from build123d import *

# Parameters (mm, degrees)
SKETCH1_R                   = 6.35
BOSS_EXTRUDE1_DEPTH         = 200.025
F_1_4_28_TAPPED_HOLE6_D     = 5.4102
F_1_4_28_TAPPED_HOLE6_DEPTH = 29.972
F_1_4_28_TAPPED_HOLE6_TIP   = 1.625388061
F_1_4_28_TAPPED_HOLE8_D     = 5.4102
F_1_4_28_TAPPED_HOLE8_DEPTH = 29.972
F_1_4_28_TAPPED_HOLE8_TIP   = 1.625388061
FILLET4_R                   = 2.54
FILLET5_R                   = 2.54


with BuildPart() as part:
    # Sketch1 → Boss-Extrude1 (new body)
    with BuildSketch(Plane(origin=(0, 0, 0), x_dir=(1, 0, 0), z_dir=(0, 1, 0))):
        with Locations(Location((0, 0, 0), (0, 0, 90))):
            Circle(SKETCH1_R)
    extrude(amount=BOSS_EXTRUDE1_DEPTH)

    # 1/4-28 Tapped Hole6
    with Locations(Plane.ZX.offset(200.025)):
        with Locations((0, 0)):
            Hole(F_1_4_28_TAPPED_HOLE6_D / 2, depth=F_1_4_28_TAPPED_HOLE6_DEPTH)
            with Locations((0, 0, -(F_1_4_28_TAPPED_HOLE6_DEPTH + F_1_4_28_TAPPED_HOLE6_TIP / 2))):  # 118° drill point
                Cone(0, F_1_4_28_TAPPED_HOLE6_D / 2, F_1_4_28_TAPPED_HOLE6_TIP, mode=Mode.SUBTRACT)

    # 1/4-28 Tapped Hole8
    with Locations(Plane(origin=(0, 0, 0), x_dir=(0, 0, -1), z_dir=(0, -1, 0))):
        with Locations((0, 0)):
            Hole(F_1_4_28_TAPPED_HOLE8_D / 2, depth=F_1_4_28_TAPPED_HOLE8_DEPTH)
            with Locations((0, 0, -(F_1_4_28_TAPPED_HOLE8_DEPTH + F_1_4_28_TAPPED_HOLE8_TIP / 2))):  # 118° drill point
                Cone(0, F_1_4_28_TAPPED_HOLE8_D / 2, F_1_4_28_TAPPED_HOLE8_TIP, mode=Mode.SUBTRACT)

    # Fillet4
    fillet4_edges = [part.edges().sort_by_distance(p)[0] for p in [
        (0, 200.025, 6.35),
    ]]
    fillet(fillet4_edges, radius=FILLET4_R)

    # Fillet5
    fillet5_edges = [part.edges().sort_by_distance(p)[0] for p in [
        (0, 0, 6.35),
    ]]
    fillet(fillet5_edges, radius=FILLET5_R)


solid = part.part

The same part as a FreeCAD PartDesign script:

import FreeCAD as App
import Part
import Sketcher
Q = App.Units.Quantity


def edges_at(feature, points):
    """Names of the edges that pass closest to the given points."""
    edges = feature.Shape.Edges
    near = lambda p: min(range(len(edges)), key=lambda i: edges[i].distToShape(Part.Vertex(*p))[0])
    return sorted({f"Edge{near(p) + 1}" for p in points})

doc = App.newDocument("Part")
body = doc.addObject("PartDesign::Body", "Body")

# Sketch on XZ plane
sketch1 = body.newObject("Sketcher::SketchObject", "Sketch")
sketch1.AttachmentSupport = (doc.getObject("XZ_Plane"), [""])
sketch1.MapMode = "FlatFace"
sketch1.addGeometry(Part.Circle(App.Vector(0, 0, 0), App.Vector(0, 0, 1), 6), False)
sketch1.addConstraint(Sketcher.Constraint("Coincident", 0, 3, -1, 1))
sketch1.addConstraint(Sketcher.Constraint("Diameter", 0, Q("0.5 in")))
pad1 = body.newObject("PartDesign::Pad", "Pad")
pad1.Profile = sketch1
pad1.Length = Q("7.875 in")
pad1.Reversed = True

# Sketch on XZ plane
sketch2 = body.newObject("Sketcher::SketchObject", "Sketch001")
sketch2.AttachmentSupport = (doc.getObject("XZ_Plane"), [""])
sketch2.MapMode = "FlatFace"
sketch2.AttachmentOffset = App.Placement(App.Vector(0, 0, -7.875 * 25.4), App.Rotation())
sketch2.addGeometry(Part.Circle(App.Vector(0, 0, 0), App.Vector(0, 0, 1), 2.7), False)
sketch2.addConstraint(Sketcher.Constraint("Coincident", 0, 3, -1, 1))
sketch2.addConstraint(Sketcher.Constraint("Diameter", 0, Q("0.213 in")))
doc.recompute()
hole = body.newObject("PartDesign::Hole", "Hole")
hole.Profile = sketch2
hole.ThreadType = "None"
hole.Diameter = Q("0.213 in")
hole.DepthType = "Dimension"
hole.Depth = Q("1.18 in")
hole.DrillPoint = "Angled"
hole.DrillPointAngle = 118
hole.Reversed = True

# Sketch on XZ plane
sketch3 = body.newObject("Sketcher::SketchObject", "Sketch002")
sketch3.AttachmentSupport = (doc.getObject("XZ_Plane"), [""])
sketch3.MapMode = "FlatFace"
sketch3.addGeometry(Part.Circle(App.Vector(0, 0, 0), App.Vector(0, 0, 1), 2.7), False)
sketch3.addConstraint(Sketcher.Constraint("Coincident", 0, 3, -1, 1))
sketch3.addConstraint(Sketcher.Constraint("Diameter", 0, Q("0.213 in")))
doc.recompute()
hole2 = body.newObject("PartDesign::Hole", "Hole001")
hole2.Profile = sketch3
hole2.ThreadType = "None"
hole2.Diameter = Q("0.213 in")
hole2.DepthType = "Dimension"
hole2.Depth = Q("1.18 in")
hole2.DrillPoint = "Angled"
hole2.DrillPointAngle = 118
doc.recompute()

fillet = body.newObject("PartDesign::Fillet", "Fillet")
fillet.Base = (hole2, edges_at(hole2, [(0, 200.025, 6.35)]))
fillet.Radius = Q("0.1 in")
doc.recompute()

fillet2 = body.newObject("PartDesign::Fillet", "Fillet001")
fillet2.Base = (fillet, edges_at(fillet, [(0, 0, 6.35)]))
fillet2.Radius = Q("0.1 in")

doc.recompute()
